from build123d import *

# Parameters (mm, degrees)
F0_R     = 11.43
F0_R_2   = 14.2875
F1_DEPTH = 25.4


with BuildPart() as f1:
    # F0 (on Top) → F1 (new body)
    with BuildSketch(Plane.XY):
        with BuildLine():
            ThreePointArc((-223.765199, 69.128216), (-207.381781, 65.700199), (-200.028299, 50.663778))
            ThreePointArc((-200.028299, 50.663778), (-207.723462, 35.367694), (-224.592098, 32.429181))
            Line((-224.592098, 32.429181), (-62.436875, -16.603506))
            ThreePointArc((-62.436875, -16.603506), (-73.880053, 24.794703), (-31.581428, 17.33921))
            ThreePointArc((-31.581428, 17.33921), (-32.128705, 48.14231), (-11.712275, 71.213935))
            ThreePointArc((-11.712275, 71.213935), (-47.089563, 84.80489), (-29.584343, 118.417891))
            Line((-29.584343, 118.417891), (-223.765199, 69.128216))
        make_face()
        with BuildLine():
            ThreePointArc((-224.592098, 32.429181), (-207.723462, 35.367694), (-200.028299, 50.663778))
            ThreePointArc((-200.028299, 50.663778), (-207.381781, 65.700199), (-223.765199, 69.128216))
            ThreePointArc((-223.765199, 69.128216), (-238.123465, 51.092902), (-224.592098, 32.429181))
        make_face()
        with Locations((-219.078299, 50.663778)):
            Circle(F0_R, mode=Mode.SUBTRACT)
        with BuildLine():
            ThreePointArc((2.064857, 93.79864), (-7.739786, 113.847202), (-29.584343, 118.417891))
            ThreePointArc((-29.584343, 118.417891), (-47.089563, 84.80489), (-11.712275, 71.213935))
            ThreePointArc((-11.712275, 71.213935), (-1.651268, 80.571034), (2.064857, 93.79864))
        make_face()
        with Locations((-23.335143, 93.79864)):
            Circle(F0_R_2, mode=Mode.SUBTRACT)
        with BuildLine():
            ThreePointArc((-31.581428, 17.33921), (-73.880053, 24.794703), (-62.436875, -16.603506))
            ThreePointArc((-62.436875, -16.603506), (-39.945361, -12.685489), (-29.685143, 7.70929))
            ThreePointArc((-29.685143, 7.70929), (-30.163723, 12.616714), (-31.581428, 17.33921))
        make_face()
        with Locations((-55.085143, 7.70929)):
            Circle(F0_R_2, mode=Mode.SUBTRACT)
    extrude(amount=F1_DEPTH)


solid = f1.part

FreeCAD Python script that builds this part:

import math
import FreeCAD as App
import Part
import Sketcher
Q = App.Units.Quantity

doc = App.newDocument("Part")
body = doc.addObject("PartDesign::Body", "Body")

# Sketch on XY plane
sketch1 = doc.addObject("Sketcher::SketchObject", "Sketch")
body.addObject(sketch1)
sketch1.AttachmentSupport = (doc.XY_Plane, [""])
sketch1.MapMode = "FlatFace"
sketch1.addGeometry(Part.LineSegment(App.Vector(-225, 32, 0), App.Vector(-62, -17, 0)), False)
sketch1.addGeometry(Part.ArcOfCircle(Part.Circle(App.Vector(-55, 8, 0), App.Vector(0, 0, 1), 25), math.radians(-107), math.radians(0)), False)
sketch1.addGeometry(Part.ArcOfCircle(Part.Circle(App.Vector(-55, 8, 0), App.Vector(0, 0, 1), 25), math.radians(0), math.radians(22)), False)
sketch1.addGeometry(Part.ArcOfCircle(Part.Circle(App.Vector(8, 33, 0), App.Vector(0, 0, 1), 42), math.radians(117), math.radians(202)), False)
sketch1.addGeometry(Part.ArcOfCircle(Part.Circle(App.Vector(-23, 94, 0), App.Vector(0, 0, 1), 25), math.radians(-63), math.radians(0)), False)
sketch1.addGeometry(Part.ArcOfCircle(Part.Circle(App.Vector(-23, 94, 0), App.Vector(0, 0, 1), 25), math.radians(0), math.radians(104)), False)
sketch1.addGeometry(Part.LineSegment(App.Vector(-30, 118, 0), App.Vector(-224, 69, 0)), False)
sketch1.addGeometry(Part.ArcOfCircle(Part.Circle(App.Vector(-219, 51, 0), App.Vector(0, 0, 1), 19), math.radians(104), math.radians(253)), False)
sketch1.addGeometry(Part.Circle(App.Vector(-219, 51, 0), App.Vector(0, 0, 1), 11), False)
sketch1.addGeometry(Part.Circle(App.Vector(-55, 8, 0), App.Vector(0, 0, 1), 14), False)
sketch1.addGeometry(Part.Circle(App.Vector(-23, 94, 0), App.Vector(0, 0, 1), 14), False)
sketch1.addConstraint(Sketcher.Constraint("Tangent", 0, 2, 1, 1))
sketch1.addConstraint(Sketcher.Constraint("Tangent", 1, 2, 2, 1))
sketch1.addConstraint(Sketcher.Constraint("Tangent", 2, 2, 3, 2))
sketch1.addConstraint(Sketcher.Constraint("Tangent", 3, 1, 4, 1))
sketch1.addConstraint(Sketcher.Constraint("Tangent", 4, 2, 5, 1))
sketch1.addConstraint(Sketcher.Constraint("Tangent", 5, 2, 6, 1))
sketch1.addConstraint(Sketcher.Constraint("Tangent", 6, 2, 7, 1))
sketch1.addConstraint(Sketcher.Constraint("Tangent", 7, 2, 0, 1))
sketch1.addConstraint(Sketcher.Constraint("Coincident", 8, 3, 7, 3))
sketch1.addConstraint(Sketcher.Constraint("Coincident", 9, 3, 1, 3))
sketch1.addConstraint(Sketcher.Constraint("Coincident", 10, 3, 4, 3))
sketch1.addConstraint(Sketcher.Constraint("Equal", 1, 5))
sketch1.addConstraint(Sketcher.Constraint("Equal", 9, 10))
sketch1.addConstraint(Sketcher.Constraint("Horizontal", 9, 3, 1, 2))
sketch1.addConstraint(Sketcher.Constraint("Horizontal", 10, 3, 4, 2))
sketch1.addConstraint(Sketcher.Constraint("Radius", 1, Q("1 in")))
sketch1.addConstraint(Sketcher.Constraint("Radius", 2, Q("1.0000001 in")))
sketch1.addConstraint(Sketcher.Constraint("Radius", 4, Q("0.9999999 in")))
sketch1.addConstraint(Sketcher.Constraint("Diameter", 8, Q("0.9 in")))
sketch1.addConstraint(Sketcher.Constraint("Radius", 7, Q("0.75 in")))
sketch1.addConstraint(Sketcher.Constraint("Diameter", 9, Q("1.125 in")))
sketch1.addConstraint(Sketcher.Constraint("DistanceX", 1, 3, 4, 3, Q("1.2500001 in")))
sketch1.addConstraint(Sketcher.Constraint("Radius", 3, 42.478161))
sketch1.addConstraint(Sketcher.Constraint("DistanceX", 7, 3, -1, 1, 219.078299))
sketch1.addConstraint(Sketcher.Constraint("DistanceX", 6, 2, -1, 1, 223.765199))
sketch1.addConstraint(Sketcher.Constraint("DistanceX", 7, 2, 8, 3, 5.513799))
sketch1.addConstraint(Sketcher.Constraint("DistanceY", -1, 1, 1, 3, 7.70929))
sketch1.addConstraint(Sketcher.Constraint("DistanceX", 4, 3, -1, 1, 23.335141))
pad1 = doc.addObject("PartDesign::Pad", "Pad")
body.addObject(pad1)
pad1.Profile = sketch1
pad1.Length = Q("1 in")

doc.recompute()
